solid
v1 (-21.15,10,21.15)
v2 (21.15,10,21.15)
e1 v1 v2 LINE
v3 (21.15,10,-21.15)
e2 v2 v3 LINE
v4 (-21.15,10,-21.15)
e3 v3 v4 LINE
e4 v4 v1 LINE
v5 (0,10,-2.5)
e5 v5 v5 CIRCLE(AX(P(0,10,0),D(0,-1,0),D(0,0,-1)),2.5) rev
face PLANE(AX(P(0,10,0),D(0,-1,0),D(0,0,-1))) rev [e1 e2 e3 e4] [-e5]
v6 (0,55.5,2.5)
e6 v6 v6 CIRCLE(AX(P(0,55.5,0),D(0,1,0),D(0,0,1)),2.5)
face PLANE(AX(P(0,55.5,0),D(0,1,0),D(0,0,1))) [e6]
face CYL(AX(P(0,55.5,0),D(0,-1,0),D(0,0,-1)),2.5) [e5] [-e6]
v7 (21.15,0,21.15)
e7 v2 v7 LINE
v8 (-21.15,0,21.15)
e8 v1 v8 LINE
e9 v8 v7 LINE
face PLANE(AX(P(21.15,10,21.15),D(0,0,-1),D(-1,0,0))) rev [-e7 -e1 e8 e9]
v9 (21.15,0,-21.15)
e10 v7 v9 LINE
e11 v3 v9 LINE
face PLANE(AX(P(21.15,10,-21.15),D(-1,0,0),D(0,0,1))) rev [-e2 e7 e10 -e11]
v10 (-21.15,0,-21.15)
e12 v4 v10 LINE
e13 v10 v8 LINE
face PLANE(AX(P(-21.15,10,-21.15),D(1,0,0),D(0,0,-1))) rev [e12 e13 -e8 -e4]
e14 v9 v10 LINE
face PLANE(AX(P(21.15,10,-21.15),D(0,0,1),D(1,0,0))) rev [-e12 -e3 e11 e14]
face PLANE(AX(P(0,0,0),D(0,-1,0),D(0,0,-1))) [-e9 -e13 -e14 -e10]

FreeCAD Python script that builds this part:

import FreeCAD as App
import Part
import Sketcher
Q = App.Units.Quantity


def add_polygon(sketch, points):
    """Adds a closed chain of lines whose ends are joined by coincident constraints."""
    first, n = sketch.GeometryCount, len(points)
    for a, b in zip(points, points[1:] + points[:1]):
        sketch.addGeometry(Part.LineSegment(App.Vector(*a, 0), App.Vector(*b, 0)), False)
    for i in range(n):
        sketch.addConstraint(Sketcher.Constraint("Coincident", first + i, 2, first + (i + 1) % n, 1))

doc = App.newDocument("Part")
body = doc.addObject("PartDesign::Body", "Body")

sketch1 = doc.addObject("Sketcher::SketchObject", "Sketch")
body.addObject(sketch1)
sketch1.AttachmentSupport = (doc.XZ_Plane, [""])
sketch1.MapMode = "FlatFace"
add_polygon(sketch1, [(-21.15, -21.15), (-21.15, 21.15), (21.15, 21.15), (21.15, -21.15)])
sketch1.addConstraint(Sketcher.Constraint("Vertical", 0))
sketch1.addConstraint(Sketcher.Constraint("Horizontal", 1))
sketch1.addConstraint(Sketcher.Constraint("Vertical", 2))
sketch1.addConstraint(Sketcher.Constraint("Horizontal", 3))
sketch1.addConstraint(Sketcher.Constraint("Symmetric", 0, 2, 2, 2, -1, 1))
sketch1.addConstraint(Sketcher.Constraint("Equal", 3, 0))
sketch1.addConstraint(Sketcher.Constraint("DistanceX", 1, 1, 1, 2, Q("42.3 mm")))
pad1 = doc.addObject("PartDesign::Pad", "Pad")
body.addObject(pad1)
pad1.Profile = sketch1
pad1.Length = 10
pad1.Reversed = True

sketch2 = doc.addObject("Sketcher::SketchObject", "Sketch001")
body.addObject(sketch2)
sketch2.AttachmentSupport = (doc.XZ_Plane, [""])
sketch2.MapMode = "FlatFace"
sketch2.AttachmentOffset = App.Placement(App.Vector(0, 0, -10), App.Rotation())
sketch2.addGeometry(Part.Circle(App.Vector(0, 0, 0), App.Vector(0, 0, 1), 2.5), False)
sketch2.addConstraint(Sketcher.Constraint("Coincident", 0, 3, -1, 1))
sketch2.addConstraint(Sketcher.Constraint("Diameter", 0, Q("5 mm")))
pad2 = doc.addObject("PartDesign::Pad", "Pad001")
body.addObject(pad2)
pad2.Profile = sketch2
pad2.Length = 45.5
pad2.Reversed = True

doc.recompute()
